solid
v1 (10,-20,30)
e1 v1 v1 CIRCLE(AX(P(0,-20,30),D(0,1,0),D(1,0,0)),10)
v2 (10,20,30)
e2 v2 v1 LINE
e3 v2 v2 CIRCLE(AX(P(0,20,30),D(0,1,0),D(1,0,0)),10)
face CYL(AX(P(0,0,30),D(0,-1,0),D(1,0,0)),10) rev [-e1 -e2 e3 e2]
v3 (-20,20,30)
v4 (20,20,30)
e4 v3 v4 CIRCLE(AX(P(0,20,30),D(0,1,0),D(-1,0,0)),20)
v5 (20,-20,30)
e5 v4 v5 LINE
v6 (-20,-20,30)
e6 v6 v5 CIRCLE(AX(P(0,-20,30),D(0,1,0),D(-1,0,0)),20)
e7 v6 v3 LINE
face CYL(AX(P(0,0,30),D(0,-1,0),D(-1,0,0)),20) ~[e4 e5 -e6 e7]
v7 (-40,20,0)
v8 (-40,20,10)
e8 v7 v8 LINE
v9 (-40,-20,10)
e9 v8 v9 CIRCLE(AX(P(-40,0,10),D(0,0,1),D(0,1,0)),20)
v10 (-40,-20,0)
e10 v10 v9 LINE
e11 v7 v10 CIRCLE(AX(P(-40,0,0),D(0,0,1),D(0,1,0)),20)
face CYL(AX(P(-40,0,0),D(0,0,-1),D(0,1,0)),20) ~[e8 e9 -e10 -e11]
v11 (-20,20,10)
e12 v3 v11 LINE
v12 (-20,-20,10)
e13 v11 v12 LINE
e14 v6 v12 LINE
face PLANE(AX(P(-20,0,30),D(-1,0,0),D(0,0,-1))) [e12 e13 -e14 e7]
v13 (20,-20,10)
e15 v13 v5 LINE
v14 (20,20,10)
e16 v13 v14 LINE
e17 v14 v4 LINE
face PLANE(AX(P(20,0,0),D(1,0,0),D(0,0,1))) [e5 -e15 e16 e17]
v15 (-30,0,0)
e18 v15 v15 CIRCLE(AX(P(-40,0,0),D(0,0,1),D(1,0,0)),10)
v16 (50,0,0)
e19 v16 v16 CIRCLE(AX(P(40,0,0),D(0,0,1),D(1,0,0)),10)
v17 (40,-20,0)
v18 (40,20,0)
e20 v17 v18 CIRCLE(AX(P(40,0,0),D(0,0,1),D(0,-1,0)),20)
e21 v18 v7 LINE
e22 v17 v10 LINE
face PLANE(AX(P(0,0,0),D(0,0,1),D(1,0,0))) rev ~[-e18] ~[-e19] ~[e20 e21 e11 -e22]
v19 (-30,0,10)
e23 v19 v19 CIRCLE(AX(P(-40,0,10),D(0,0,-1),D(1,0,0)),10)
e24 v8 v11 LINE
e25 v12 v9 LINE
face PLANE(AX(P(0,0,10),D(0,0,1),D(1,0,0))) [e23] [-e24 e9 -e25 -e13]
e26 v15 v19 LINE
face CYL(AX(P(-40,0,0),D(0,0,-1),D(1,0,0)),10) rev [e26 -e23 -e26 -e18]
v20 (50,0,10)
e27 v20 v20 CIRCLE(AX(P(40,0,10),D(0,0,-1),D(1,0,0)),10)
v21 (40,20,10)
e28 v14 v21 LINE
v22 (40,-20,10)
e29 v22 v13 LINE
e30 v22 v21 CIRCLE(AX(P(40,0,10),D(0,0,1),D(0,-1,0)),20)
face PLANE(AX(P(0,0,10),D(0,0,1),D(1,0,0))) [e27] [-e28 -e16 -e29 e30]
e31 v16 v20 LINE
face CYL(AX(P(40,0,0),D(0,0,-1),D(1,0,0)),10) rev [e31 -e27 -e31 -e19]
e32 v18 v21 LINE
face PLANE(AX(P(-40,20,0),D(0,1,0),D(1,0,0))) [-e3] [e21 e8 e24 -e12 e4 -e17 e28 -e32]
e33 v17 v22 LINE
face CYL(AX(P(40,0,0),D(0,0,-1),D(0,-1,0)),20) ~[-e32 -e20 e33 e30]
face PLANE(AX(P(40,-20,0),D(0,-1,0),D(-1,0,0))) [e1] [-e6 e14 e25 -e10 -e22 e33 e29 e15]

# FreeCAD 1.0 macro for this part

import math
import FreeCAD as App
import Part
import Sketcher
from FreeCAD import Vector
Q = App.Units.Quantity

doc = App.newDocument("Part")
body = doc.addObject("PartDesign::Body", "Body")

# Sketch on XY plane
sketch1 = body.newObject("Sketcher::SketchObject", "Sketch")
sketch1.AttachmentSupport = (doc.getObject("XY_Plane"), [""])
sketch1.MapMode = "FlatFace"
sketch1.addGeometry([
    Part.LineSegment(Vector(40, 20, 0), Vector(-40, 20, 0)),  # 0
    Part.ArcOfCircle(Part.Circle(Vector(-40, 0, 0), Vector(0, 0, 1), 20), math.radians(90), math.radians(270)),  # 1
    Part.LineSegment(Vector(-40, -20, 0), Vector(40, -20, 0)),  # 2
    Part.ArcOfCircle(Part.Circle(Vector(40, 0, 0), Vector(0, 0, 1), 20), math.radians(-90), math.radians(90)),  # 3
    Part.Circle(Vector(40, 0, 0), Vector(0, 0, 1), 10),  # 4
    Part.Circle(Vector(-40, 0, 0), Vector(0, 0, 1), 10),  # 5
], False)
sketch1.addConstraint([
    Sketcher.Constraint("Tangent", 0, 2, 1, 1),
    Sketcher.Constraint("Tangent", 1, 2, 2, 1),
    Sketcher.Constraint("Tangent", 2, 2, 3, 1),
    Sketcher.Constraint("Tangent", 3, 2, 0, 1),
    Sketcher.Constraint("Horizontal", 0),
    Sketcher.Constraint("Horizontal", 2),
    Sketcher.Constraint("Coincident", 4, 3, 3, 3),
    Sketcher.Constraint("Coincident", 5, 3, 1, 3),
    Sketcher.Constraint("Equal", 4, 5),
    Sketcher.Constraint("Symmetric", 1, 3, 3, 3, -1, 1),
    Sketcher.Constraint("Diameter", 4, Q("20 mm")),
    Sketcher.Constraint("Radius", 1, Q("20 mm")),
    Sketcher.Constraint("DistanceX", 0, 2, 0, 1, Q("80 mm")),
])
pad1 = body.newObject("PartDesign::Pad", "Pad")
pad1.Profile = sketch1
pad1.Length = 10

# Sketch on XZ plane
sketch2 = body.newObject("Sketcher::SketchObject", "Sketch001")
sketch2.AttachmentSupport = (doc.getObject("XZ_Plane"), [""])
sketch2.MapMode = "FlatFace"
sketch2.addGeometry([
    Part.LineSegment(Vector(20, 0, 0), Vector(-20, 0, 0)),  # 0
    Part.LineSegment(Vector(-20, 0, 0), Vector(-20, 30, 0)),  # 1
    Part.ArcOfCircle(Part.Circle(Vector(0, 30, 0), Vector(0, 0, 1), 20), math.radians(0), math.radians(180)),  # 2
    Part.LineSegment(Vector(20, 30, 0), Vector(20, 0, 0)),  # 3
    Part.Circle(Vector(0, 30, 0), Vector(0, 0, 1), 10),  # 4
], False)
sketch2.addConstraint([
    Sketcher.Constraint("Coincident", 0, 2, 1, 1),
    Sketcher.Constraint("Tangent", 1, 2, 2, 2),
    Sketcher.Constraint("Tangent", 2, 1, 3, 1),
    Sketcher.Constraint("Coincident", 3, 2, 0, 1),
    Sketcher.Constraint("Horizontal", 0),
    Sketcher.Constraint("Vertical", 1),
    Sketcher.Constraint("Vertical", 3),
    Sketcher.Constraint("Coincident", 4, 3, 2, 3),
    Sketcher.Constraint("Symmetric", 0, 2, 3, 2, -1, 1),
    Sketcher.Constraint("Diameter", 4, Q("20 mm")),
    Sketcher.Constraint("Radius", 2, Q("20 mm")),
    Sketcher.Constraint("DistanceY", 1, 1, 1, 2, Q("30 mm")),
])
pad2 = body.newObject("PartDesign::Pad", "Pad001")
pad2.Profile = sketch2
pad2.Length = 40
pad2.Midplane = True

doc.recompute()
